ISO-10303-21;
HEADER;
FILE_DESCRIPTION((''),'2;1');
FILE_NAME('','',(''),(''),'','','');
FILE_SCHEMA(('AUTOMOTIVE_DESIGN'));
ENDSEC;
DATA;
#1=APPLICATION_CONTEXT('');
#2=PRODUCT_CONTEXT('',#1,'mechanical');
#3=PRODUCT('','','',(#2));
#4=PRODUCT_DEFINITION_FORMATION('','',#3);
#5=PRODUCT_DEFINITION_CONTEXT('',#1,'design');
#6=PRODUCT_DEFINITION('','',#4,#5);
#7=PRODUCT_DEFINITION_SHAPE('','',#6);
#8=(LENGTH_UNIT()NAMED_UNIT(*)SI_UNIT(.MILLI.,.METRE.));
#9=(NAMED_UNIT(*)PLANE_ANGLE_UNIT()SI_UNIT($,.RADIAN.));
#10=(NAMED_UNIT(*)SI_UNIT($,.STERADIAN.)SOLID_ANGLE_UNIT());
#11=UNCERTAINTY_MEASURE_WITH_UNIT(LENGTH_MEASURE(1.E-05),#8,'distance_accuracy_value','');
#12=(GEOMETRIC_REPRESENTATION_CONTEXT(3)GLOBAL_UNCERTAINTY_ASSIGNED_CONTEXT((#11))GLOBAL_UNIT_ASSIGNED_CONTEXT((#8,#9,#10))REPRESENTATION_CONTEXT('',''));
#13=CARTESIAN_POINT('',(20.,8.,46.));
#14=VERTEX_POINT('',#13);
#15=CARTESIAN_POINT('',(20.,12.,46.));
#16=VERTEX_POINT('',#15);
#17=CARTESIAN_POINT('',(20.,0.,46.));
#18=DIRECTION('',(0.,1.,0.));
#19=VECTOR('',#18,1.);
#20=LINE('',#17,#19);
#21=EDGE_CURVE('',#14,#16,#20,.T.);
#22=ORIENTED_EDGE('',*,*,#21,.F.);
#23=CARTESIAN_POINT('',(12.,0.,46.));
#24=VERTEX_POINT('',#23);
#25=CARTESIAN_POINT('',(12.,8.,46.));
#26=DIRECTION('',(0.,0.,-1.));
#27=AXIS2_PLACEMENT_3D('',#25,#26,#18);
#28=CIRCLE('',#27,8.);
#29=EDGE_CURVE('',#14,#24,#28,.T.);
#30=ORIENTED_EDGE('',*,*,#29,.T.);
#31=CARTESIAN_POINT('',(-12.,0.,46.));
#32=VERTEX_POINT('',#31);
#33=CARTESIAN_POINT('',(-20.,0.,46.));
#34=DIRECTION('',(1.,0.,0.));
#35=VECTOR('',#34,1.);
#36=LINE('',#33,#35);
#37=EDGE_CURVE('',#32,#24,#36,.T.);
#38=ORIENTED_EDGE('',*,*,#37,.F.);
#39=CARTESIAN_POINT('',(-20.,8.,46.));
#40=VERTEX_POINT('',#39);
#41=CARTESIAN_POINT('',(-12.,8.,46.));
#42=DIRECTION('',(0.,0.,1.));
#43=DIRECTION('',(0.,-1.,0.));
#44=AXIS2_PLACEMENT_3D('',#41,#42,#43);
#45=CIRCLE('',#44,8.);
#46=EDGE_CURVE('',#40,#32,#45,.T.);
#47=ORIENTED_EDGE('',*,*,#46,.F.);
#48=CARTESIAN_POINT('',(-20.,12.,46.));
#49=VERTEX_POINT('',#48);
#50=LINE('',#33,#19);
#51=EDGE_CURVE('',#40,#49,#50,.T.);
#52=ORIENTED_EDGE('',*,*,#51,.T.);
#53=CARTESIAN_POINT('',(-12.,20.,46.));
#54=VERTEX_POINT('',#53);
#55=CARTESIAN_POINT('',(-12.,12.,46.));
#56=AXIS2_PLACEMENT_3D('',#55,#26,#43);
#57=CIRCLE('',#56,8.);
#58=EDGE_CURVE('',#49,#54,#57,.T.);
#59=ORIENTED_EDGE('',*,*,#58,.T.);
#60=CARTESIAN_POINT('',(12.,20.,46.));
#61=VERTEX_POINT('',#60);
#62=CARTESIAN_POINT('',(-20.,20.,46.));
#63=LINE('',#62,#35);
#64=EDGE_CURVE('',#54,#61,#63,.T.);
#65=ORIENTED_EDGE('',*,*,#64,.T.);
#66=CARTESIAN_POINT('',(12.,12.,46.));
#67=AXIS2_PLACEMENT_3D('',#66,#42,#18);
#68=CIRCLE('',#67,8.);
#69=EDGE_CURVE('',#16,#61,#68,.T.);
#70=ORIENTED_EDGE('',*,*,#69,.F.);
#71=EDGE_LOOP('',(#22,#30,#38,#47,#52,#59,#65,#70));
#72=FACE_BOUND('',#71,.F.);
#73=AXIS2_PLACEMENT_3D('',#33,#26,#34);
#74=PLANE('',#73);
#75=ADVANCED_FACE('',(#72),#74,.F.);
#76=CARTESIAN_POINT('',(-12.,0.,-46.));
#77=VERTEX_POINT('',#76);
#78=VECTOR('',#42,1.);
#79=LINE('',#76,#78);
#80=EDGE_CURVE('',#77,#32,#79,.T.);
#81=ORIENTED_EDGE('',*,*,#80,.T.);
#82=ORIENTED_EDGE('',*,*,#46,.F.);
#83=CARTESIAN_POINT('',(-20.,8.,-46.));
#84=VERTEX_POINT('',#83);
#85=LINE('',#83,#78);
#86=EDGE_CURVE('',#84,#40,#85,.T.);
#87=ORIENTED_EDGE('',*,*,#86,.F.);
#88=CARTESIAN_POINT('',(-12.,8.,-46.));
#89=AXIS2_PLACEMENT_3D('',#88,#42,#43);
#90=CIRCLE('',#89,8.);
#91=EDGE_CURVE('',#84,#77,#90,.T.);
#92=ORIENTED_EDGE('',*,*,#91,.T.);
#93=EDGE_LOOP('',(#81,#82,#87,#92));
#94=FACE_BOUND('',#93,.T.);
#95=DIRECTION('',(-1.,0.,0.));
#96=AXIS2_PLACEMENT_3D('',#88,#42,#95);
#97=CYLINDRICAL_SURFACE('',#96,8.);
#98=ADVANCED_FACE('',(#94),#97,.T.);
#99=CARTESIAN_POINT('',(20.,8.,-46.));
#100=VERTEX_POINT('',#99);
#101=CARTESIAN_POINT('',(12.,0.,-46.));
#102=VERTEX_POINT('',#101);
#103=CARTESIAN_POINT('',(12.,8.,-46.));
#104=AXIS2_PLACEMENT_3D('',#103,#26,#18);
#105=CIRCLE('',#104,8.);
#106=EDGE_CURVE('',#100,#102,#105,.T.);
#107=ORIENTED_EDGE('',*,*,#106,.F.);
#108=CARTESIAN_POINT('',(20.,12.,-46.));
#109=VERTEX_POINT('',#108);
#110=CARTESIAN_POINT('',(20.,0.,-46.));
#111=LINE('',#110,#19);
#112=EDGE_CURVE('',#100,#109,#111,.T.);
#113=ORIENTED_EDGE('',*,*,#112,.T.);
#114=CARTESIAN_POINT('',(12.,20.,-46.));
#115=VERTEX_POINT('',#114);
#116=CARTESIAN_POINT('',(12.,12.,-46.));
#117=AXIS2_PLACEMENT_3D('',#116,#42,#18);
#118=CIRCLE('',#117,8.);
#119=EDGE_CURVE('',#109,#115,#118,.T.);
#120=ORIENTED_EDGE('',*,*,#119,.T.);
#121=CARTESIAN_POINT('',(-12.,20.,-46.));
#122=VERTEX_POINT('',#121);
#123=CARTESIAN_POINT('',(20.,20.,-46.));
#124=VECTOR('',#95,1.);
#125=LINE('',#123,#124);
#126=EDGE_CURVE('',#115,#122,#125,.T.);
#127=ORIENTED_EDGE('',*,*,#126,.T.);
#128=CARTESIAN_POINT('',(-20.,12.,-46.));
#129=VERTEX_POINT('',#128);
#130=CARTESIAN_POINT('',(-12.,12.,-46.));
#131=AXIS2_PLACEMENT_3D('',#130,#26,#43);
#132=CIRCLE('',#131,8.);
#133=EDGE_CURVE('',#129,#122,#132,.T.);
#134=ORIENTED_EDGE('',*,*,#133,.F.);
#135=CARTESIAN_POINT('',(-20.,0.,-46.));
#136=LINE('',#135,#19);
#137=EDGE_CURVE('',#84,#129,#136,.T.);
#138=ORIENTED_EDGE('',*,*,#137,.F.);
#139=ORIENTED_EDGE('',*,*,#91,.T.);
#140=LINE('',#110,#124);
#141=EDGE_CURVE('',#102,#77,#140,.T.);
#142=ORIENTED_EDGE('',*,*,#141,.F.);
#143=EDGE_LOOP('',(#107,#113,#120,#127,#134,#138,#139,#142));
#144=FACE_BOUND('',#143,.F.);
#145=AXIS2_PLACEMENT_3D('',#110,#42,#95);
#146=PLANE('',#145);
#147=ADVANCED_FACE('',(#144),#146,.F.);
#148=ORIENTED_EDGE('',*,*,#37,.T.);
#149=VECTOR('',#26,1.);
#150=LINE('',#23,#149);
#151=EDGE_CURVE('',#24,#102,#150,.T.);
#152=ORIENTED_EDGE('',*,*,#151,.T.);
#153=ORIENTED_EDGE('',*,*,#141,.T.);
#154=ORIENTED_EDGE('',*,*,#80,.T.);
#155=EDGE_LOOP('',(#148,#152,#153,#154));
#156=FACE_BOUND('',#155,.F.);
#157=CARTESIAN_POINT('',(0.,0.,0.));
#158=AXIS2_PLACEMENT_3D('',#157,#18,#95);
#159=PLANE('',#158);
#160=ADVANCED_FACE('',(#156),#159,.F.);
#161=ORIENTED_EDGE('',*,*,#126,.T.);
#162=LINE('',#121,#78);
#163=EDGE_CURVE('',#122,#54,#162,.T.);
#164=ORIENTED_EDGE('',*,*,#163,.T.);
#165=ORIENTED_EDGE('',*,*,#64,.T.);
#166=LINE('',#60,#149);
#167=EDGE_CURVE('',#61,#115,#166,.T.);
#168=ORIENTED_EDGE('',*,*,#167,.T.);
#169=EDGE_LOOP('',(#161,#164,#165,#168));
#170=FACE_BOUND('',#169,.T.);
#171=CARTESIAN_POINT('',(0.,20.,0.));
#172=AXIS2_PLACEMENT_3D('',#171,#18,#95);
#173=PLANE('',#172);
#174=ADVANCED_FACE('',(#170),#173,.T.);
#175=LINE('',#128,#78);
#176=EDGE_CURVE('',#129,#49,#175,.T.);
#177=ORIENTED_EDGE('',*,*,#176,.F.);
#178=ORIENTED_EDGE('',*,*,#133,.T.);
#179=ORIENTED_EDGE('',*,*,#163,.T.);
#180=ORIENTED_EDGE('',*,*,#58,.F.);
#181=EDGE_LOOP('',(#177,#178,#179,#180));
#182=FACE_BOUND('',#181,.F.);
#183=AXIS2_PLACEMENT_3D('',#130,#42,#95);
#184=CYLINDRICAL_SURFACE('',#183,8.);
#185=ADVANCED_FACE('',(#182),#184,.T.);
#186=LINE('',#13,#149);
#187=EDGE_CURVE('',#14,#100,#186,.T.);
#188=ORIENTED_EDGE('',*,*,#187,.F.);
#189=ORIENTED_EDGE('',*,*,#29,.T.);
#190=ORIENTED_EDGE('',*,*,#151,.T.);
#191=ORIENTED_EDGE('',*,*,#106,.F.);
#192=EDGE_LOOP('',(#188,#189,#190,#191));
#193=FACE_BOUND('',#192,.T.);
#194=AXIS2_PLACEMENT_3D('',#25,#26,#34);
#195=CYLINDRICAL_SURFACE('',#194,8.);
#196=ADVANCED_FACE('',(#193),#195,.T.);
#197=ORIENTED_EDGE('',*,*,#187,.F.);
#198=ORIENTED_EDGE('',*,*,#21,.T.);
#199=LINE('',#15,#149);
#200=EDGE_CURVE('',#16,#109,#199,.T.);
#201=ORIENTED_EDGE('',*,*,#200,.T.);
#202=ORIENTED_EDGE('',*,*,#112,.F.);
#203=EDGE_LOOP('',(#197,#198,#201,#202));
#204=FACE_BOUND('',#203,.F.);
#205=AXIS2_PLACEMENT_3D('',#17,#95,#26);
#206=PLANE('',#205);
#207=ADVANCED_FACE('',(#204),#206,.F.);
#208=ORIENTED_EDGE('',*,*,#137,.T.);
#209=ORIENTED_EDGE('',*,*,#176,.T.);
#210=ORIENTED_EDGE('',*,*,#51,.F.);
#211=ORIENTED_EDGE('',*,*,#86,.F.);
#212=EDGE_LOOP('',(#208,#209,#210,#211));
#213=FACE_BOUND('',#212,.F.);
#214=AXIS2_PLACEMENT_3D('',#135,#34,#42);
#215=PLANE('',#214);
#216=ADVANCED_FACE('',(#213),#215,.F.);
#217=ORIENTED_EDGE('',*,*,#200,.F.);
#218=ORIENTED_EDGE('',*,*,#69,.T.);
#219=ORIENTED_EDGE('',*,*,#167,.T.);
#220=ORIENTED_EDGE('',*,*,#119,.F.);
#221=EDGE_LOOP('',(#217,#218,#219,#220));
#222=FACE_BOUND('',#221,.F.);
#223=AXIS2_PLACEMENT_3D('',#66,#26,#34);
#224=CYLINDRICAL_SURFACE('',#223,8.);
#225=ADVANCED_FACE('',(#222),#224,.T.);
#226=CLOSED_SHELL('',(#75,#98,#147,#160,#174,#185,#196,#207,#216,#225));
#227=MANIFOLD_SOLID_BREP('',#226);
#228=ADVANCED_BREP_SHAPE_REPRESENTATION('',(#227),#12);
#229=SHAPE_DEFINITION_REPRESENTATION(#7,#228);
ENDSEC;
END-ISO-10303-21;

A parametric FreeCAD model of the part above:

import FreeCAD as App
import Part
import Sketcher
Q = App.Units.Quantity


def edges_at(feature, points):
    """Names of the edges that pass closest to the given points."""
    edges = feature.Shape.Edges
    near = lambda p: min(range(len(edges)), key=lambda i: edges[i].distToShape(Part.Vertex(*p))[0])
    return sorted({f"Edge{near(p) + 1}" for p in points})

doc = App.newDocument("Part")
body = doc.addObject("PartDesign::Body", "Body")

# Sketch on XZ plane
sketch1 = doc.addObject("Sketcher::SketchObject", "Sketch")
body.addObject(sketch1)
sketch1.AttachmentSupport = (doc.XZ_Plane, [""])
sketch1.MapMode = "FlatFace"
sketch1.addGeometry([
    Part.LineSegment(App.Vector(-20, 46, 0), App.Vector(20, 46, 0)),
    Part.LineSegment(App.Vector(20, 46, 0), App.Vector(20, -46, 0)),
    Part.LineSegment(App.Vector(20, -46, 0), App.Vector(-20, -46, 0)),
    Part.LineSegment(App.Vector(-20, -46, 0), App.Vector(-20, 46, 0)),
], False)
sketch1.addConstraint([
    Sketcher.Constraint("Coincident", 0, 2, 1, 1),
    Sketcher.Constraint("Coincident", 1, 2, 2, 1),
    Sketcher.Constraint("Coincident", 2, 2, 3, 1),
    Sketcher.Constraint("Coincident", 3, 2, 0, 1),
    Sketcher.Constraint("Horizontal", 0),
    Sketcher.Constraint("Vertical", 1),
    Sketcher.Constraint("Horizontal", 2),
    Sketcher.Constraint("Vertical", 3),
    Sketcher.Constraint("Symmetric", 0, 2, 2, 2, -1, 1),
    Sketcher.Constraint("DistanceX", 0, 1, 0, 2, Q("40 mm")),
    Sketcher.Constraint("DistanceY", 1, 2, 1, 1, Q("92 mm")),
])
pad1 = doc.addObject("PartDesign::Pad", "Pad")
body.addObject(pad1)
pad1.Profile = sketch1
pad1.Length = 20
pad1.Reversed = True
doc.recompute()

fillet = doc.addObject("PartDesign::Fillet", "Fillet")
body.addObject(fillet)
fillet.Base = (pad1, edges_at(pad1, [
    (20, 20, 0),
    (-20, 20, 0),
    (20, 0, 0),
    (-20, 0, 0),
]))
fillet.Radius = 8

doc.recompute()
